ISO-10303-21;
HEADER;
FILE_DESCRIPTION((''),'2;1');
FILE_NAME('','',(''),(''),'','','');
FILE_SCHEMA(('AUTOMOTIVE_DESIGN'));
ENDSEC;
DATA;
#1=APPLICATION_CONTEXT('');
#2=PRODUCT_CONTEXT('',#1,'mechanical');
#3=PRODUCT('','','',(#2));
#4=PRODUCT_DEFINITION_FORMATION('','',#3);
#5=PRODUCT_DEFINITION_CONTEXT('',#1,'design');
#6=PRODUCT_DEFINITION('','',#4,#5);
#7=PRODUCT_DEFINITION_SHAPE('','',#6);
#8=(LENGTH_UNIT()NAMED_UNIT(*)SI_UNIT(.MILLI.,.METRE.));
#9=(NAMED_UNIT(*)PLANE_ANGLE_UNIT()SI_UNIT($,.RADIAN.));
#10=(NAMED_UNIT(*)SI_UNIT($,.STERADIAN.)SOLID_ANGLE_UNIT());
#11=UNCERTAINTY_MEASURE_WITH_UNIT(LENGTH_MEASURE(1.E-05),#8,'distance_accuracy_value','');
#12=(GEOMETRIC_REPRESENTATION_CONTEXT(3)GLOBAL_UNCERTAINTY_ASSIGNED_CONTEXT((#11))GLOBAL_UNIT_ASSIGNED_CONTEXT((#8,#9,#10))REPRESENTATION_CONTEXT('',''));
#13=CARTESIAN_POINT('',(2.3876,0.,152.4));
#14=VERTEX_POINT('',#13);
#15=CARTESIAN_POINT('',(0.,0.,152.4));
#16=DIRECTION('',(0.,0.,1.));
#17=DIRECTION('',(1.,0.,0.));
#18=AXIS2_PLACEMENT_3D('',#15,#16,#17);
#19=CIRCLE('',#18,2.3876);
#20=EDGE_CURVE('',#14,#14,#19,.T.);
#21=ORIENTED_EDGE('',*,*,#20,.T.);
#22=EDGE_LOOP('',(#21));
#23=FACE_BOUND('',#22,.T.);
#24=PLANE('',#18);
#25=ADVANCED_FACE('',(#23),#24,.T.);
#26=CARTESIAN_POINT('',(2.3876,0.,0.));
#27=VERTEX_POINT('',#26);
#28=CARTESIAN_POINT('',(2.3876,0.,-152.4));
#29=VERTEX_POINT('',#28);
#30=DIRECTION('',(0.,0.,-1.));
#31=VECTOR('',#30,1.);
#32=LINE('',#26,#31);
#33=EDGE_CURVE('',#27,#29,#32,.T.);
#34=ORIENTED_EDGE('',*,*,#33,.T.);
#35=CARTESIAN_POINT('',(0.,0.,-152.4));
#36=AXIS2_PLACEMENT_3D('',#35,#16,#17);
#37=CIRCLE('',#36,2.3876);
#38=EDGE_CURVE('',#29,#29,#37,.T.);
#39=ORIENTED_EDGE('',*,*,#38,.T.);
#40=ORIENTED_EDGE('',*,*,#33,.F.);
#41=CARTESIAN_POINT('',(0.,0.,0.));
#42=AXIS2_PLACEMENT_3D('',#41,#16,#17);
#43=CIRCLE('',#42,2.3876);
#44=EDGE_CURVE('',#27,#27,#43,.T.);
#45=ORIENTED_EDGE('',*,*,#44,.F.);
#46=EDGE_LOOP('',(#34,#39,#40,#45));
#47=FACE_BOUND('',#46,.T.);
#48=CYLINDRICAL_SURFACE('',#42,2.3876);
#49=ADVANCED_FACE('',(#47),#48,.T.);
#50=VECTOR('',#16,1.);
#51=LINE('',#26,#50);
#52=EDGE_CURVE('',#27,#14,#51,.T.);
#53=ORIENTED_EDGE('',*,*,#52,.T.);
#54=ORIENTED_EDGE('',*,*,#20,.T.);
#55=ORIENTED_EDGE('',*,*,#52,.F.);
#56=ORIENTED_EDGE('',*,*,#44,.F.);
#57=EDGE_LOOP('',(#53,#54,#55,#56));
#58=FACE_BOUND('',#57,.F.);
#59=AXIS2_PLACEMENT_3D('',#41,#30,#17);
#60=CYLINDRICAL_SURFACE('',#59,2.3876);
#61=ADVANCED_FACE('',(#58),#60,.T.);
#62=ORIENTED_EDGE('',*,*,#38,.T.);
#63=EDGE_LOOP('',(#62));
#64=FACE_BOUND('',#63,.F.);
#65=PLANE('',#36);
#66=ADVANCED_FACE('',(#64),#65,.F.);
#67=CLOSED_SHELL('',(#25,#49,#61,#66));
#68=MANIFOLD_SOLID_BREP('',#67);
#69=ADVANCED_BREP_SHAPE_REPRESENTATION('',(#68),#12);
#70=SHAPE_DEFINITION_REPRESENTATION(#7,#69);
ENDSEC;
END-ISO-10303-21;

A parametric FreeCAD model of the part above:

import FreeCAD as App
import Part
import Sketcher

V = App.Vector
Q = App.Units.Quantity

doc = App.newDocument("Part")
body = doc.addObject("PartDesign::Body", "Body")

# Sketch on XY plane
sketch1 = body.newObject("Sketcher::SketchObject", "Sketch")
sketch1.AttachmentSupport = (doc.getObject("XY_Plane"), [""])
sketch1.MapMode = "FlatFace"
sketch1.addGeometry(Part.Circle(V(0, 0, 0), V(0, 0, 1), 2.4), False)
sketch1.addConstraint([
    Sketcher.Constraint("Coincident", 0, 3, -1, 1),
    Sketcher.Constraint("Diameter", 0, Q("0.188 in")),
])
pad1 = body.newObject("PartDesign::Pad", "Pad")
pad1.Profile = sketch1
pad1.Length = Q("12 in")
pad1.Midplane = True

doc.recompute()
